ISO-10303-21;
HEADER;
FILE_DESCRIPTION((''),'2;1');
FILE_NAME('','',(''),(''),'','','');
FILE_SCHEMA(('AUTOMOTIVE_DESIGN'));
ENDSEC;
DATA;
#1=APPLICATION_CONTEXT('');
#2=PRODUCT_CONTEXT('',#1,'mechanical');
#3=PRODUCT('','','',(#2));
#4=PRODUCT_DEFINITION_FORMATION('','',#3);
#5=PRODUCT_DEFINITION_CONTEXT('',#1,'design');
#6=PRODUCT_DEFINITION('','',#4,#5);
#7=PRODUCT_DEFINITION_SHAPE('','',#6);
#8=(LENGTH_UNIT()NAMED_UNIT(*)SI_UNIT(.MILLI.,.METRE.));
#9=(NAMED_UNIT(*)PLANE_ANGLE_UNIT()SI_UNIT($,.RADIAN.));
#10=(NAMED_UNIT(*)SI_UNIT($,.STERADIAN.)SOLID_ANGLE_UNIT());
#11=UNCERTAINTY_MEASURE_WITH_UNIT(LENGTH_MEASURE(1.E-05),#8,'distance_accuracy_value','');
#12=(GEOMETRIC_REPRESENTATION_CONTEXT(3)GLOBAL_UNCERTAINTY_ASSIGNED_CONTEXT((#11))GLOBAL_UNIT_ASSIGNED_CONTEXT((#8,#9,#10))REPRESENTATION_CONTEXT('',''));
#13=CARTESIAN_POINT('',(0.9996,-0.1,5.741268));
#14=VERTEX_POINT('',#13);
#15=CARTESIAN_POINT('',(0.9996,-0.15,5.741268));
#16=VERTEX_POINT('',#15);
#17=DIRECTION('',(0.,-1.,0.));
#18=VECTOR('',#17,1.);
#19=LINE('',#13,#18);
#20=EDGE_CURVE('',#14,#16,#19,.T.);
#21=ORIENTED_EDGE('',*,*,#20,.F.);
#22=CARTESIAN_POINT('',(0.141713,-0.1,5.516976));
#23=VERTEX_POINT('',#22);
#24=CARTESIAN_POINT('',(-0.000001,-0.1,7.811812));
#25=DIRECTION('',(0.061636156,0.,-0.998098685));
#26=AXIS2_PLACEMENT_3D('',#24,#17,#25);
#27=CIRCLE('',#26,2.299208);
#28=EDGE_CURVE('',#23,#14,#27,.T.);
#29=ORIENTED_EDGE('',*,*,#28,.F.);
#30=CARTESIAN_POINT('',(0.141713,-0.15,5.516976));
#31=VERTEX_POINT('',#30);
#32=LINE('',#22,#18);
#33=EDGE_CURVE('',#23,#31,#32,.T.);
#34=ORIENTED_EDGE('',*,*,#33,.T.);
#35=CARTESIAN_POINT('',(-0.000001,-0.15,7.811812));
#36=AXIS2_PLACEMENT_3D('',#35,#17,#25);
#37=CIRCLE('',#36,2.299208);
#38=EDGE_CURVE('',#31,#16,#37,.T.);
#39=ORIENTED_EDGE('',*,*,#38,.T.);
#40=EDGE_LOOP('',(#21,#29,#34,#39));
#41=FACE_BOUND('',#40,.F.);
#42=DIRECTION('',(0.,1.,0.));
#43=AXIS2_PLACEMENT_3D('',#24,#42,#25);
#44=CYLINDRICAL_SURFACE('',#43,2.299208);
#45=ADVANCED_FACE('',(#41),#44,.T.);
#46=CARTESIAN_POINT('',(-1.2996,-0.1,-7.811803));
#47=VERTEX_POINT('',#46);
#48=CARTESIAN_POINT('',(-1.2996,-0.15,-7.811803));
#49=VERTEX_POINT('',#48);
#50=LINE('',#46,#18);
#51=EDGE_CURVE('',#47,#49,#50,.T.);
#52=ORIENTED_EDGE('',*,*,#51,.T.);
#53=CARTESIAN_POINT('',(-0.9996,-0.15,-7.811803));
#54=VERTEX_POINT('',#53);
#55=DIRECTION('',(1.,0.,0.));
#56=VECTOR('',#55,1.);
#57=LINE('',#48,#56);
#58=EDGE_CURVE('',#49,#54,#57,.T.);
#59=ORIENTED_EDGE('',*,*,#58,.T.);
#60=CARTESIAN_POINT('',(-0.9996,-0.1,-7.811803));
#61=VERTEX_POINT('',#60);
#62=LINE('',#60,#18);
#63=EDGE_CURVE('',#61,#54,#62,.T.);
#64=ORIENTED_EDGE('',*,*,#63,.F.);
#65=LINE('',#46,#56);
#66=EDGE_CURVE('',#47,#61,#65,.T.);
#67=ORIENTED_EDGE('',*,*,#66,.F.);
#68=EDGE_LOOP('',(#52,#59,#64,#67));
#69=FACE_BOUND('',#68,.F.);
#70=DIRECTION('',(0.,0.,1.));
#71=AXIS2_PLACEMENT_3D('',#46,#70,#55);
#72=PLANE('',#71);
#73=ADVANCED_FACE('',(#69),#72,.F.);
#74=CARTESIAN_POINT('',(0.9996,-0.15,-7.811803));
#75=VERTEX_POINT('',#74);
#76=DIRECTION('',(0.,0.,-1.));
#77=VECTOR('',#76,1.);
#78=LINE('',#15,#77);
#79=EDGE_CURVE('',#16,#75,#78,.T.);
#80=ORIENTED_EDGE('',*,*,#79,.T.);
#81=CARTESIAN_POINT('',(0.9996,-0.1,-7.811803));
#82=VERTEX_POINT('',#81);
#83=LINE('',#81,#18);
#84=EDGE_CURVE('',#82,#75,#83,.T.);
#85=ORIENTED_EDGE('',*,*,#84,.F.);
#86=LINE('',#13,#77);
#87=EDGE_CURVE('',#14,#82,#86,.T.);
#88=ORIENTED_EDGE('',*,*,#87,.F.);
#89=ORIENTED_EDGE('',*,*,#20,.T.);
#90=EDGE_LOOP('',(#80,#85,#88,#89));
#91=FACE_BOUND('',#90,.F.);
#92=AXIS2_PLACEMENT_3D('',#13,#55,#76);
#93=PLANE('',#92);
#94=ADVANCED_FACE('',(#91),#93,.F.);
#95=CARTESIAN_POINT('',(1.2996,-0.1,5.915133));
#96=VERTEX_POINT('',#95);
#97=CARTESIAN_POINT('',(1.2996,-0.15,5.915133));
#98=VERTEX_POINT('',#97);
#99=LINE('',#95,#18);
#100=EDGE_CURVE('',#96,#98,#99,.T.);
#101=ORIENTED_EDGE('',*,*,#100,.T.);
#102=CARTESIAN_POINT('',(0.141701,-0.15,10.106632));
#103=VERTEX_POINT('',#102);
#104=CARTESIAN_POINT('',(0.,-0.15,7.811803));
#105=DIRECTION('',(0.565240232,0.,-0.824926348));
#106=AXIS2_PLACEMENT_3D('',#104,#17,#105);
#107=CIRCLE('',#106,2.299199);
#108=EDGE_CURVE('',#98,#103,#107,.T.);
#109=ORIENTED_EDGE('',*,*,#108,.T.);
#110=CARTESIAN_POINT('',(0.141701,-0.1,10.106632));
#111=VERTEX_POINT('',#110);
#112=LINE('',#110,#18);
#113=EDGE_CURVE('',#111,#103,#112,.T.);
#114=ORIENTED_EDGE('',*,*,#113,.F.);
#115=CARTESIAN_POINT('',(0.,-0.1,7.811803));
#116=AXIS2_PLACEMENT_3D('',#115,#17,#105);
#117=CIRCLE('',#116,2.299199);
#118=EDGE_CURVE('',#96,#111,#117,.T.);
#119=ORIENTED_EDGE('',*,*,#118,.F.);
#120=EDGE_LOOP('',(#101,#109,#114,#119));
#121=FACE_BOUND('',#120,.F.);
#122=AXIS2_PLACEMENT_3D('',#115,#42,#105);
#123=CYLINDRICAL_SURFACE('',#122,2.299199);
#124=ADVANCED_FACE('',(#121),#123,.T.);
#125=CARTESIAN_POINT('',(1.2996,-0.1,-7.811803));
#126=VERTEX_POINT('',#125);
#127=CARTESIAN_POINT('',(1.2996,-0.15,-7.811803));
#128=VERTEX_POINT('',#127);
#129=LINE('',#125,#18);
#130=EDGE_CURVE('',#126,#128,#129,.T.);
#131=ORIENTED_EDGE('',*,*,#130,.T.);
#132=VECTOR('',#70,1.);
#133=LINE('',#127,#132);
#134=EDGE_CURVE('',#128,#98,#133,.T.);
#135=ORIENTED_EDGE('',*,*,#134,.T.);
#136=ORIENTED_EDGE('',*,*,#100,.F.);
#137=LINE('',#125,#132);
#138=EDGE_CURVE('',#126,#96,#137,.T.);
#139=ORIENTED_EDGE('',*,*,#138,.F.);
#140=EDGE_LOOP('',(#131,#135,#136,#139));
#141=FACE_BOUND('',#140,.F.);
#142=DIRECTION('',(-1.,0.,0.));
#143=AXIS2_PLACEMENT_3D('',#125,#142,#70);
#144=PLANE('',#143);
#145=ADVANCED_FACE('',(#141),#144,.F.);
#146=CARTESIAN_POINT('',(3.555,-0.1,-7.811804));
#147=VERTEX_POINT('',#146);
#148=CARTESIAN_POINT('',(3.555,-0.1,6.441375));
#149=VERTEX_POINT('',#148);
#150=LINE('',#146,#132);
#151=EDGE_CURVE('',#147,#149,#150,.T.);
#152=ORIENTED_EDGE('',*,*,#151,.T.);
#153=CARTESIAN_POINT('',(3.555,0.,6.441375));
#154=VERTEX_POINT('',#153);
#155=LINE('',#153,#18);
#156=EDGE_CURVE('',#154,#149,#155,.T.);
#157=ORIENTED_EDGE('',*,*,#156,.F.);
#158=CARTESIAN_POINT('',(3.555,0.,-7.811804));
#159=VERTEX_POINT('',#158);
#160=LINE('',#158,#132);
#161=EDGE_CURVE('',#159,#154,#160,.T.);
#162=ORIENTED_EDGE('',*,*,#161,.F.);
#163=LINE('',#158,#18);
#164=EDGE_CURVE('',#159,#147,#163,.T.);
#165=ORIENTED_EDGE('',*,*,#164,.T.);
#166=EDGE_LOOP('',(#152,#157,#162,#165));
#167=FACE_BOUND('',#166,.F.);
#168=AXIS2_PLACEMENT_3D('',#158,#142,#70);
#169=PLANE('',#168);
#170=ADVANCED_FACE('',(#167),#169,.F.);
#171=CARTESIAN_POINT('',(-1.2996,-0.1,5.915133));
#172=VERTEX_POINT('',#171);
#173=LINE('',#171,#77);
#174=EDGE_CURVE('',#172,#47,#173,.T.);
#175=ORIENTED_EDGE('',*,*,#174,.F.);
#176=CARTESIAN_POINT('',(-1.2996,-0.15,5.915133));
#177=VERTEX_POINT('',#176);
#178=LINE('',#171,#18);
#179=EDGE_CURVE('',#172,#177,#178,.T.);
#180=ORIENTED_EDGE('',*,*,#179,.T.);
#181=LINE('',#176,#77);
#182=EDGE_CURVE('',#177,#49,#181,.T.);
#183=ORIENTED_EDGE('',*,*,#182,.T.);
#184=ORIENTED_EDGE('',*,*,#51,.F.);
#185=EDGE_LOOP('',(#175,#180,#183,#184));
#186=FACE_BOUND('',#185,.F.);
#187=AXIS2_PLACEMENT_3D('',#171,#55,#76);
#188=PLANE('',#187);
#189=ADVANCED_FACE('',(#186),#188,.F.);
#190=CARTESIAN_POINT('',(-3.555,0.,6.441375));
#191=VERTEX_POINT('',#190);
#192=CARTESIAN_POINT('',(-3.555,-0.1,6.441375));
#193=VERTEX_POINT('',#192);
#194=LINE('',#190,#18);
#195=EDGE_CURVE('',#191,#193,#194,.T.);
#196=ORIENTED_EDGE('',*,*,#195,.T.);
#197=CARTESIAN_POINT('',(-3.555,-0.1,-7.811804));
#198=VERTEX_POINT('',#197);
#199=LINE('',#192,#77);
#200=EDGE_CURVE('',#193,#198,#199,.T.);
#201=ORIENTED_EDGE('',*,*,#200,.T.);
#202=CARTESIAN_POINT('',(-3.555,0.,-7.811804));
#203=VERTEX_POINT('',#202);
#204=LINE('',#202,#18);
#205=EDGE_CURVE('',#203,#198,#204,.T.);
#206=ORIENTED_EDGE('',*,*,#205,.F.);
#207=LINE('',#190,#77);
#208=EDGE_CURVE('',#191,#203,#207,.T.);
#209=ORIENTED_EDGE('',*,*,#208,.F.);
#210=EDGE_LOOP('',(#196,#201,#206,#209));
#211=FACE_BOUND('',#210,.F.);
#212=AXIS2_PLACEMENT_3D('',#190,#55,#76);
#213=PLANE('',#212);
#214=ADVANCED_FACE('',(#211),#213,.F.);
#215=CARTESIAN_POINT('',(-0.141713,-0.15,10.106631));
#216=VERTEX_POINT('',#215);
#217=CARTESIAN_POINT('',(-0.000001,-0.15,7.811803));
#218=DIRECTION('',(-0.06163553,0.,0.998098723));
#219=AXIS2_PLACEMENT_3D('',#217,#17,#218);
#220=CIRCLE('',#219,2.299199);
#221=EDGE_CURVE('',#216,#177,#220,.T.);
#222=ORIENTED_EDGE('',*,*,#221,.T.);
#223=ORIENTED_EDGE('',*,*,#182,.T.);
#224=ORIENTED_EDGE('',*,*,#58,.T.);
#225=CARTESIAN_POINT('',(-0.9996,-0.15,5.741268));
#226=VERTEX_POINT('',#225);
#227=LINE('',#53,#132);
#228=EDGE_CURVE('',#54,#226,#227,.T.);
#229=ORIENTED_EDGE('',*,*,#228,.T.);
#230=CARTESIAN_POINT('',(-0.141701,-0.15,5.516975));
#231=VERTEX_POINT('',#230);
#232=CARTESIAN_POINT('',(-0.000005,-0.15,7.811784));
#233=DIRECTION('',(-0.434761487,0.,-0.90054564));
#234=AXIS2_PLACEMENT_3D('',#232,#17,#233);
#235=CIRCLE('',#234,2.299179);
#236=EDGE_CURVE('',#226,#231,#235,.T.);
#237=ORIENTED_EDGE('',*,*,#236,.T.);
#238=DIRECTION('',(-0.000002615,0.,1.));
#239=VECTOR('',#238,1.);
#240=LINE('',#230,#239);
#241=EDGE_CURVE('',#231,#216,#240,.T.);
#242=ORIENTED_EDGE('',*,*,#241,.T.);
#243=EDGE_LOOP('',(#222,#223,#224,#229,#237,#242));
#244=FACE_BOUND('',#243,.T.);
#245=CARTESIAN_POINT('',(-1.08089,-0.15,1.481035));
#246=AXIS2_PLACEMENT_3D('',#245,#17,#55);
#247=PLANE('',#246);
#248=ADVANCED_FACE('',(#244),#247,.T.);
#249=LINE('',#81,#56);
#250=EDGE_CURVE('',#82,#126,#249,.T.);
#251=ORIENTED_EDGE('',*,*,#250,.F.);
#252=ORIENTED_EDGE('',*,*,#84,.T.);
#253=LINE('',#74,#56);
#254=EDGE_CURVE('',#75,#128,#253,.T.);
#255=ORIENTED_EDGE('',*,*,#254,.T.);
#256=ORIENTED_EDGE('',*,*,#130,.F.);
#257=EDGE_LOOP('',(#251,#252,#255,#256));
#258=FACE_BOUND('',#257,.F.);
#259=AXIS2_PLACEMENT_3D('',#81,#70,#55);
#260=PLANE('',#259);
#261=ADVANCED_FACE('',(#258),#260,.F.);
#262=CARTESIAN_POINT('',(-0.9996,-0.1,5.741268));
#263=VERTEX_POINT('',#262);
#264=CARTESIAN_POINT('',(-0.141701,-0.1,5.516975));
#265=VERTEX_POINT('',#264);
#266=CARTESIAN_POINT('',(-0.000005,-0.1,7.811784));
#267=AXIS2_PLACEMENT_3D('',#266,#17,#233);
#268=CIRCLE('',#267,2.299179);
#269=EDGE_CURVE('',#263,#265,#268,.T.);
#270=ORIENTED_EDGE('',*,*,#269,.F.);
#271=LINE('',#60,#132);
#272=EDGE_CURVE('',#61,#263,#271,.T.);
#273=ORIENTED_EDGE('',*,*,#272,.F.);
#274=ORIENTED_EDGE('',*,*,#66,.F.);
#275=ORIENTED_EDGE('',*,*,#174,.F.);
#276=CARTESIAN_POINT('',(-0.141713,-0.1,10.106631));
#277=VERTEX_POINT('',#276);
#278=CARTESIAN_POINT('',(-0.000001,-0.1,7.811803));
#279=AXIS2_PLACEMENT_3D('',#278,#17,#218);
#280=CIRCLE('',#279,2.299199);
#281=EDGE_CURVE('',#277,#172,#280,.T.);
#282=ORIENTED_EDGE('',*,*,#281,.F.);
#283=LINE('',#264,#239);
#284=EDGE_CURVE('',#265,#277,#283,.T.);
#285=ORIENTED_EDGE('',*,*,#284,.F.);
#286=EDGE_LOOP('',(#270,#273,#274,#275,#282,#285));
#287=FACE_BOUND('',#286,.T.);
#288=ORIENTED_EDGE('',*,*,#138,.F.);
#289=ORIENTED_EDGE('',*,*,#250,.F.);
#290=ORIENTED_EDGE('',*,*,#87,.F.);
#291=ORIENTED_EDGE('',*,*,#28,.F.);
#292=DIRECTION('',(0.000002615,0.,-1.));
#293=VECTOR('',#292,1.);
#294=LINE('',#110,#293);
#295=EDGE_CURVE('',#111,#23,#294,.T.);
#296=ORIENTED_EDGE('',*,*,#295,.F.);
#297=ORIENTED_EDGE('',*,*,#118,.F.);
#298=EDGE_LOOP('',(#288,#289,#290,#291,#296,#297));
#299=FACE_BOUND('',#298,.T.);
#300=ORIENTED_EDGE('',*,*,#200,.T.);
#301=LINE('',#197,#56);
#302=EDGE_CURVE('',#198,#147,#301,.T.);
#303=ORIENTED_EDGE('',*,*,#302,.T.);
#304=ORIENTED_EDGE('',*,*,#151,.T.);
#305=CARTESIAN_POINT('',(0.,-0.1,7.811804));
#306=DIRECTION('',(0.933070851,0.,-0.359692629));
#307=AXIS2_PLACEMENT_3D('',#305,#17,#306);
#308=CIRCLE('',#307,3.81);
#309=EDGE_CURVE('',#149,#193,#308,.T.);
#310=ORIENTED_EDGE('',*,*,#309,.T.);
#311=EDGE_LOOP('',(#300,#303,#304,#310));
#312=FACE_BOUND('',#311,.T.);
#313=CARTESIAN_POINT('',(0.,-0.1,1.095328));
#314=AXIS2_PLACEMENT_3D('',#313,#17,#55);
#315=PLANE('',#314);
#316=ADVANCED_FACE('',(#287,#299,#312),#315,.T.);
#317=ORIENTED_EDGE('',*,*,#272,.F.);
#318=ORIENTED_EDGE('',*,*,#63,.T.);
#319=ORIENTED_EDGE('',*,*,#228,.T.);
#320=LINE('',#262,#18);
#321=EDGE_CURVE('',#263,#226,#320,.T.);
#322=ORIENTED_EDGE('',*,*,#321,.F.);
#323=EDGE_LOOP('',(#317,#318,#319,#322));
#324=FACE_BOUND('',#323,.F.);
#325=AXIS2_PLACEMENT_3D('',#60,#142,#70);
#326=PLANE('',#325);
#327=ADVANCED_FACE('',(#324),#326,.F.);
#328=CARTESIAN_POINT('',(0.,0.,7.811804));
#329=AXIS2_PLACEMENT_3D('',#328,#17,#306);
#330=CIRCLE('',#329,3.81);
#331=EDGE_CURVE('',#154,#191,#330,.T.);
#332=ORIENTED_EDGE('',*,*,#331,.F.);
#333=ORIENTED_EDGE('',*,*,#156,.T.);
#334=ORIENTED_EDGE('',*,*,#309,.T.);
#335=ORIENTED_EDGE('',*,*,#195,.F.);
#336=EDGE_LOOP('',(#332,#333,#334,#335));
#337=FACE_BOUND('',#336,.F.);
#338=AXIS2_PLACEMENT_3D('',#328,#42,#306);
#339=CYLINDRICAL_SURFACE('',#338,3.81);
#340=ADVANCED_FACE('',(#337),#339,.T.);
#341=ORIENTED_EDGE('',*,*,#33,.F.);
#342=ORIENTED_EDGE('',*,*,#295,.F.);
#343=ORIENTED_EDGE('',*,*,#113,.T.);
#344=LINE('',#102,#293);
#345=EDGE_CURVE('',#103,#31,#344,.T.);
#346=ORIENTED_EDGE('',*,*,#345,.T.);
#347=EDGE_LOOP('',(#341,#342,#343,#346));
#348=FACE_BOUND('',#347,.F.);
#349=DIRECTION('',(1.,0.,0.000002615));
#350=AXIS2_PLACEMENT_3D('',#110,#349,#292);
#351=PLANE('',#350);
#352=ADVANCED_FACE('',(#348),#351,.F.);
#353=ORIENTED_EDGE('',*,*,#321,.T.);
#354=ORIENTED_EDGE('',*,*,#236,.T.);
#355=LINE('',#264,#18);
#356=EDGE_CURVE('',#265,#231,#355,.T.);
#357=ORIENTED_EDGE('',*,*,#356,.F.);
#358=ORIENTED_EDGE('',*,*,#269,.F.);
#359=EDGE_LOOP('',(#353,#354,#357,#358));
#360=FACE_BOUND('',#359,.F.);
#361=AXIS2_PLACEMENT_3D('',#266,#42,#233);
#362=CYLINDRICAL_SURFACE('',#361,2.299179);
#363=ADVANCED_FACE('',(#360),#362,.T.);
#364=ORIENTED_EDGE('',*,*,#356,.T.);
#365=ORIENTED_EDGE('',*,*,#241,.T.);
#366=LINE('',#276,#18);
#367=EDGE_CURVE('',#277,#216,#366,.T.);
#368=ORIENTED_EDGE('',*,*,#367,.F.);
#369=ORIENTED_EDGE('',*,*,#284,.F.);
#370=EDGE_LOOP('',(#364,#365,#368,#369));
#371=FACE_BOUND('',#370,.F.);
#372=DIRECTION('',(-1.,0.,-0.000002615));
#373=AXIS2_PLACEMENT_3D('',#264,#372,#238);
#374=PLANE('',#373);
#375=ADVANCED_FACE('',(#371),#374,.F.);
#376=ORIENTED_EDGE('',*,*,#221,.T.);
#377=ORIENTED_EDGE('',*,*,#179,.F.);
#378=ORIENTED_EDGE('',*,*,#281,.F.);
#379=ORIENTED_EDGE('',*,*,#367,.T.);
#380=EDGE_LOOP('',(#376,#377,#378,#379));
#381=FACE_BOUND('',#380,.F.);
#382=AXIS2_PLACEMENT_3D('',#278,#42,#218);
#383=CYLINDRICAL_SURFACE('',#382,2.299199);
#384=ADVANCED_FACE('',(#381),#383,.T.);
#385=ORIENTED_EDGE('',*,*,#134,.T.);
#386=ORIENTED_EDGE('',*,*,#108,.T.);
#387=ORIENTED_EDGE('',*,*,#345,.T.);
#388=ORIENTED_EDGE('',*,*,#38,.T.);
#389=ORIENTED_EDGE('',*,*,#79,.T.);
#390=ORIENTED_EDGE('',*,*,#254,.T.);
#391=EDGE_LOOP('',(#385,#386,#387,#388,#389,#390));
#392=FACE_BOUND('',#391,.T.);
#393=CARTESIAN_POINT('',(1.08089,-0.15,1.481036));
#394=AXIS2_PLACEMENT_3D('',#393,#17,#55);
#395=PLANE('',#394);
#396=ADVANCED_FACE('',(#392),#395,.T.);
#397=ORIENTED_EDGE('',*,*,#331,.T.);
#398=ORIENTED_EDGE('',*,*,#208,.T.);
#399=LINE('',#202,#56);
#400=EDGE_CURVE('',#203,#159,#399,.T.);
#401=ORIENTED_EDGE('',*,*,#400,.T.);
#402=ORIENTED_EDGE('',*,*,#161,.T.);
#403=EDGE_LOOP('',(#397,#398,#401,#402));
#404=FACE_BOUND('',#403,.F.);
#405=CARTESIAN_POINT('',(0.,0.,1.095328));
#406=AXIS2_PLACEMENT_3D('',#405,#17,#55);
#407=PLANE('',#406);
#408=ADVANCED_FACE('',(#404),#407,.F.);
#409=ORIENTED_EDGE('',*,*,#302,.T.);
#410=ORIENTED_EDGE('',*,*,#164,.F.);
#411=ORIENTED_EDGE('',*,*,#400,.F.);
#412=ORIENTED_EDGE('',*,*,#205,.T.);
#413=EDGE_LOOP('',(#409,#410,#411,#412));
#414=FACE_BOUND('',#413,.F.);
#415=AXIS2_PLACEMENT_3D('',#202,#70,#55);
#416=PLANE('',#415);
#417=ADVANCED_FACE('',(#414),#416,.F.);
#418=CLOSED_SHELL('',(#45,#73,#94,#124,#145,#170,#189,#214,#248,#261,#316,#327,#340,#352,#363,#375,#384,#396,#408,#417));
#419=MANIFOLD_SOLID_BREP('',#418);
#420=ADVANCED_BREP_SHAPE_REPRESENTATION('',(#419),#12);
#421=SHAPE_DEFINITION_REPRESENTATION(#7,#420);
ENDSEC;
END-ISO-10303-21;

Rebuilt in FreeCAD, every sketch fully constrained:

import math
import FreeCAD as App
import Part
import Sketcher
Q = App.Units.Quantity

doc = App.newDocument("Part")
body = doc.addObject("PartDesign::Body", "Body")

# Sketch on XZ plane
sketch1 = body.newObject("Sketcher::SketchObject", "Sketch")
sketch1.AttachmentSupport = (doc.getObject("XZ_Plane"), [""])
sketch1.MapMode = "FlatFace"
sketch1.addGeometry([
    Part.LineSegment(App.Vector(-3.6, -7.8, 0), App.Vector(3.6, -7.8, 0)),
    Part.LineSegment(App.Vector(3.6, -7.8, 0), App.Vector(3.6, 6.4, 0)),
    Part.ArcOfCircle(Part.Circle(App.Vector(0, 7.8, 0), App.Vector(0, 0, 1), 3.8), math.radians(-21), math.radians(201)),
    Part.LineSegment(App.Vector(-3.6, 6.4, 0), App.Vector(-3.6, -7.8, 0)),
], False)
sketch1.addConstraint([
    Sketcher.Constraint("Coincident", 0, 2, 1, 1),
    Sketcher.Constraint("Coincident", 1, 2, 2, 1),
    Sketcher.Constraint("Coincident", 2, 2, 3, 1),
    Sketcher.Constraint("Coincident", 3, 2, 0, 1),
    Sketcher.Constraint("Horizontal", 0),
    Sketcher.Constraint("Vertical", 1),
    Sketcher.Constraint("Vertical", 3),
    Sketcher.Constraint("Symmetric", 1, 2, 2, 2, -2),
    Sketcher.Constraint("Radius", 2, Q("3.81 mm")),
    Sketcher.Constraint("DistanceX", 0, 1, 0, 2, Q("7.11 mm")),
    Sketcher.Constraint("DistanceY", 1, 1, 1, 2, Q("14.253179 mm")),
    Sketcher.Constraint("DistanceY", -1, 1, 2, 3, Q("7.811804 mm")),
])
pad1 = body.newObject("PartDesign::Pad", "Pad")
pad1.Profile = sketch1
pad1.Length = 0.1

# Sketch on XZ plane
sketch2 = body.newObject("Sketcher::SketchObject", "Sketch001")
sketch2.AttachmentSupport = (doc.getObject("XZ_Plane"), [""])
sketch2.MapMode = "FlatFace"
sketch2.AttachmentOffset = App.Placement(App.Vector(0, 0, 0.1), App.Rotation())
sketch2.addGeometry([
    Part.LineSegment(App.Vector(-0.14, 5.52, 0), App.Vector(-0.14, 10.11, 0)),  # 0
    Part.ArcOfCircle(Part.Circle(App.Vector(0, 7.81, 0), App.Vector(0, 0, 1), 2.3), math.radians(94), math.radians(236)),  # 1
    Part.LineSegment(App.Vector(-1.3, 5.92, 0), App.Vector(-1.3, -7.81, 0)),  # 2
    Part.LineSegment(App.Vector(-1.3, -7.81, 0), App.Vector(-1, -7.81, 0)),  # 3
    Part.LineSegment(App.Vector(-1, -7.81, 0), App.Vector(-1, 5.74, 0)),  # 4
    Part.ArcOfCircle(Part.Circle(App.Vector(0, 7.81, 0), App.Vector(0, 0, 1), 2.3), math.radians(-116), math.radians(-94)),  # 5
    Part.ArcOfCircle(Part.Circle(App.Vector(0, 7.81, 0), App.Vector(0, 0, 1), 2.3), math.radians(-56), math.radians(86)),  # 6
    Part.LineSegment(App.Vector(0.14, 10.11, 0), App.Vector(0.14, 5.52, 0)),  # 7
    Part.ArcOfCircle(Part.Circle(App.Vector(0, 7.81, 0), App.Vector(0, 0, 1), 2.3), math.radians(-86), math.radians(-64)),  # 8
    Part.LineSegment(App.Vector(1, 5.74, 0), App.Vector(1, -7.81, 0)),  # 9
    Part.LineSegment(App.Vector(1, -7.81, 0), App.Vector(1.3, -7.81, 0)),  # 10
    Part.LineSegment(App.Vector(1.3, -7.81, 0), App.Vector(1.3, 5.92, 0)),  # 11
], False)
sketch2.addConstraint([
    Sketcher.Constraint("Coincident", 0, 2, 1, 1),
    Sketcher.Constraint("Coincident", 1, 2, 2, 1),
    Sketcher.Constraint("Coincident", 2, 2, 3, 1),
    Sketcher.Constraint("Coincident", 3, 2, 4, 1),
    Sketcher.Constraint("Coincident", 4, 2, 5, 1),
    Sketcher.Constraint("Coincident", 5, 2, 0, 1),
    Sketcher.Constraint("Coincident", 6, 2, 7, 1),
    Sketcher.Constraint("Coincident", 7, 2, 8, 1),
    Sketcher.Constraint("Coincident", 8, 2, 9, 1),
    Sketcher.Constraint("Coincident", 9, 2, 10, 1),
    Sketcher.Constraint("Coincident", 10, 2, 11, 1),
    Sketcher.Constraint("Coincident", 11, 2, 6, 1),
    Sketcher.Constraint("Vertical", 2),
    Sketcher.Constraint("Horizontal", 3),
    Sketcher.Constraint("Vertical", 4),
    Sketcher.Constraint("Vertical", 9),
    Sketcher.Constraint("Horizontal", 10),
    Sketcher.Constraint("Vertical", 11),
    Sketcher.Constraint("Coincident", 6, 3, 1, 3),
    Sketcher.Constraint("Coincident", 8, 3, 1, 3),
    Sketcher.Constraint("Equal", 1, 6),
    Sketcher.Constraint("Symmetric", 4, 2, 8, 2, -2),
    Sketcher.Constraint("Symmetric", 2, 2, 10, 2, -2),
    Sketcher.Constraint("PointOnObject", 1, 3, -2),
    Sketcher.Constraint("Parallel", 0, 7),
    Sketcher.Constraint("Horizontal", 0, 2, 6, 2),
    Sketcher.Constraint("Horizontal", 5, 2, 7, 2),
    Sketcher.Constraint("DistanceX", 3, 1, 3, 2, Q("0.3 mm")),
    Sketcher.Constraint("Radius", 1, Q("2.299199 mm")),
    Sketcher.Constraint("Radius", 5, Q("2.299179 mm")),
    Sketcher.Constraint("Radius", 8, Q("2.299208 mm")),
    Sketcher.Constraint("DistanceY", 4, 1, 4, 2, Q("13.553071 mm")),
    Sketcher.Constraint("DistanceX", 1, 2, -1, 1, Q("1.2996 mm")),
    Sketcher.Constraint("DistanceX", 5, 2, -1, 1, Q("0.141701 mm")),
    Sketcher.Constraint("DistanceX", -1, 1, 6, 2, Q("0.141701 mm")),
    Sketcher.Constraint("DistanceY", -1, 1, 0, 2, Q("10.106631 mm")),
])
pad2 = body.newObject("PartDesign::Pad", "Pad001")
pad2.Profile = sketch2
pad2.Length = 0.05

doc.recompute()
